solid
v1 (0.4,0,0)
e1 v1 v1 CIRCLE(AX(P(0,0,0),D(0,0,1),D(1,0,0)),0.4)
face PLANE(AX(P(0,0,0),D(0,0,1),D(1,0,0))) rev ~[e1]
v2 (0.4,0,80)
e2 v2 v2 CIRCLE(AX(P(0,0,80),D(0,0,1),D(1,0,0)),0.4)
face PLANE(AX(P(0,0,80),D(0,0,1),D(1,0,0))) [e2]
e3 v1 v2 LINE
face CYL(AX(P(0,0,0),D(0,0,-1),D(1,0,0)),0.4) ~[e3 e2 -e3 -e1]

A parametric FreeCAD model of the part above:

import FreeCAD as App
import Part
import Sketcher

doc = App.newDocument("Part")
body = doc.addObject("PartDesign::Body", "Body")

sketch1 = body.newObject("Sketcher::SketchObject", "Sketch")
sketch1.AttachmentSupport = (doc.getObject("XY_Plane"), [""])
sketch1.MapMode = "FlatFace"
sketch1.addGeometry(Part.Circle(App.Vector(0, 0, 0), App.Vector(0, 0, 1), 0.4), False)
sketch1.addConstraint([
    Sketcher.Constraint("Coincident", 0, 3, -1, 1),
    Sketcher.Constraint("Diameter", 0, 0.8),
])
pad1 = body.newObject("PartDesign::Pad", "Pad")
pad1.Profile = sketch1
pad1.Length = 80

doc.recompute()
